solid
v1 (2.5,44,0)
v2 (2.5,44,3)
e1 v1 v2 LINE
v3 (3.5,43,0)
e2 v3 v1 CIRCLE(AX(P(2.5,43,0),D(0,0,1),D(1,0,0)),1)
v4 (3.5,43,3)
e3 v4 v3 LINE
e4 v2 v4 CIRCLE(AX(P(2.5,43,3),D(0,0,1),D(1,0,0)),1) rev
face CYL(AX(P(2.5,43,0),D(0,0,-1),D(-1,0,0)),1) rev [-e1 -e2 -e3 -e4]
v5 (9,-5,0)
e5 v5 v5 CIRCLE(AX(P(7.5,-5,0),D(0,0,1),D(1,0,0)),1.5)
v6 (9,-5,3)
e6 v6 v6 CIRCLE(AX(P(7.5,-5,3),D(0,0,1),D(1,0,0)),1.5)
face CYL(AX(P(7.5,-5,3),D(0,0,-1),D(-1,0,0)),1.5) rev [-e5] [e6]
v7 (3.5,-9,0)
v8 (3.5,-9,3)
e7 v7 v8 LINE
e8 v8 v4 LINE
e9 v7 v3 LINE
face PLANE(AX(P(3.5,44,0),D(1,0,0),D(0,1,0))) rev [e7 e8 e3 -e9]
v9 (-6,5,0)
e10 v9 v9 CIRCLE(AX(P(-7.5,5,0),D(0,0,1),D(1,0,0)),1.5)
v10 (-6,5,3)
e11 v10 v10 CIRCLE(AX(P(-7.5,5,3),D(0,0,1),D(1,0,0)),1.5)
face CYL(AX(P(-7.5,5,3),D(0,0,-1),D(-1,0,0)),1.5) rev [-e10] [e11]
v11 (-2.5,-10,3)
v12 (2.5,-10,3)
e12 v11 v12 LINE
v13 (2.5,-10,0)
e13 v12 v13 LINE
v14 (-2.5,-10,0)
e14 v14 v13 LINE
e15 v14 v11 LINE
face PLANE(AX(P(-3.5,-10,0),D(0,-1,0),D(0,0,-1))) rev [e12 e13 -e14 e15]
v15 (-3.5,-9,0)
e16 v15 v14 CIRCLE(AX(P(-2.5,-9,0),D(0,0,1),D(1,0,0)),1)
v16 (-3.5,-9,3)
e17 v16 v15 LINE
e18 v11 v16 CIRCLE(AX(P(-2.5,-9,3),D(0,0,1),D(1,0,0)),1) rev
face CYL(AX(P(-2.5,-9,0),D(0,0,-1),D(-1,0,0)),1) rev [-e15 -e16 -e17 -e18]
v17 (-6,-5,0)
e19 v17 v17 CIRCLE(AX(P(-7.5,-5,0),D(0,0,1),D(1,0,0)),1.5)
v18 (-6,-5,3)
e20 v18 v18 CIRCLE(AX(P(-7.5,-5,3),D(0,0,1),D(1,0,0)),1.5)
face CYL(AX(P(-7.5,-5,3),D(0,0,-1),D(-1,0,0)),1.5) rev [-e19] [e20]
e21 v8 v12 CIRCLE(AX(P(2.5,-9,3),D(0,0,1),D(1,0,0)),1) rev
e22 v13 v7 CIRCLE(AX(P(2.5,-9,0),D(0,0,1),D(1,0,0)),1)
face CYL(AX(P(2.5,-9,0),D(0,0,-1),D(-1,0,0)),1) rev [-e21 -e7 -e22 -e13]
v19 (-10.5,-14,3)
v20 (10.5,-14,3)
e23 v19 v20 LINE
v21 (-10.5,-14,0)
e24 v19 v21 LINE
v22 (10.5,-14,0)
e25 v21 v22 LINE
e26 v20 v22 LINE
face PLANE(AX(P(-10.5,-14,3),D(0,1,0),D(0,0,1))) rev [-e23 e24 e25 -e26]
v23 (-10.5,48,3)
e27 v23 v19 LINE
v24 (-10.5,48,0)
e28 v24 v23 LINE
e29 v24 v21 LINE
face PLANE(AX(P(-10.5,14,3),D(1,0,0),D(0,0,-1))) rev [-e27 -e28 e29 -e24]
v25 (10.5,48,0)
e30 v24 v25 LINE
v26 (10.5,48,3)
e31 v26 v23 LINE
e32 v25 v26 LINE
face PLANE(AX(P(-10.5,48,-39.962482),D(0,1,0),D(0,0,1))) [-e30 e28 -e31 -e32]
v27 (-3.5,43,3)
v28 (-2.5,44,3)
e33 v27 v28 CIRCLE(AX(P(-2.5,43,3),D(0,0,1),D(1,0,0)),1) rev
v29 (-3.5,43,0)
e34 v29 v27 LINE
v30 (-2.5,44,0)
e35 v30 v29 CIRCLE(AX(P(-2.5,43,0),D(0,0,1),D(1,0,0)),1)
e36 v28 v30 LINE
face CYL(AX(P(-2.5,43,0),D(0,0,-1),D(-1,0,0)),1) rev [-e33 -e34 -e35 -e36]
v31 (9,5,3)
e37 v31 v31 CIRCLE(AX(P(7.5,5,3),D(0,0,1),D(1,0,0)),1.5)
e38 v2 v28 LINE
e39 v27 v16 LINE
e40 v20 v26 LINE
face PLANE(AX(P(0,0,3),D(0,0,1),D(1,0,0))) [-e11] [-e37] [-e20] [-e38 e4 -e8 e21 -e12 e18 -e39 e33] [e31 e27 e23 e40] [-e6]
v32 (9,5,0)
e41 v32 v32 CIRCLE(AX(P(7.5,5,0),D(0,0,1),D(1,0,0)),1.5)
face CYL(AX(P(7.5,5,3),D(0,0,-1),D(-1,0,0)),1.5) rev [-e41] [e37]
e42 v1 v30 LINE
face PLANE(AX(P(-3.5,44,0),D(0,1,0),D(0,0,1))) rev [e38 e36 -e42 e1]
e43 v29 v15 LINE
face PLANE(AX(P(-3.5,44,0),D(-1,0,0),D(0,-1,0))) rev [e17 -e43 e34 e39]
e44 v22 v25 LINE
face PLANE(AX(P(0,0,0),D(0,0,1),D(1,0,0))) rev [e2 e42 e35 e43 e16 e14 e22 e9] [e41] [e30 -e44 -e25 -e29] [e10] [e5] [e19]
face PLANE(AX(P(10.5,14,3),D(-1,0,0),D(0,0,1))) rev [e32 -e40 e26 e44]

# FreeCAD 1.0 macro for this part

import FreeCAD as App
import Part
import Sketcher
Q = App.Units.Quantity


def edges_at(feature, points):
    """Names of the edges that pass closest to the given points."""
    edges = feature.Shape.Edges
    near = lambda p: min(range(len(edges)), key=lambda i: edges[i].distToShape(Part.Vertex(*p))[0])
    return sorted({f"Edge{near(p) + 1}" for p in points})

doc = App.newDocument("Part")
body = doc.addObject("PartDesign::Body", "Body")

sketch1 = body.newObject("Sketcher::SketchObject", "Sketch")
sketch1.AttachmentSupport = (doc.getObject("XY_Plane"), [""])
sketch1.MapMode = "FlatFace"
sketch1.addGeometry(Part.LineSegment(App.Vector(10.5, 14, 0), App.Vector(-10.5, 14, 0)), False)
sketch1.addGeometry(Part.LineSegment(App.Vector(-10.5, 14, 0), App.Vector(-10.5, -14, 0)), False)
sketch1.addGeometry(Part.LineSegment(App.Vector(-10.5, -14, 0), App.Vector(10.5, -14, 0)), False)
sketch1.addGeometry(Part.LineSegment(App.Vector(10.5, -14, 0), App.Vector(10.5, -4, 0)), False)
sketch1.addGeometry(Part.LineSegment(App.Vector(10.5, -4, 0), App.Vector(34.5, -4, 0)), False)
sketch1.addGeometry(Part.LineSegment(App.Vector(34.5, -4, 0), App.Vector(34.5, 4, 0)), False)
sketch1.addGeometry(Part.LineSegment(App.Vector(34.5, 4, 0), App.Vector(10.5, 4, 0)), False)
sketch1.addGeometry(Part.LineSegment(App.Vector(10.5, 4, 0), App.Vector(10.5, 14, 0)), False)
sketch1.addGeometry(Part.Circle(App.Vector(7.5, -5, 0), App.Vector(0, 0, 1), 1.5), False)
sketch1.addGeometry(Part.Circle(App.Vector(-7.5, -5, 0), App.Vector(0, 0, 1), 1.5), False)
sketch1.addGeometry(Part.Circle(App.Vector(31.5, 0, 0), App.Vector(0, 0, 1), 1.5), False)
sketch1.addGeometry(Part.Circle(App.Vector(16.5, 0, 0), App.Vector(0, 0, 1), 1.5), False)
sketch1.addGeometry(Part.Circle(App.Vector(7.5, 5, 0), App.Vector(0, 0, 1), 1.5), False)
sketch1.addGeometry(Part.Circle(App.Vector(-7.5, 5, 0), App.Vector(0, 0, 1), 1.5), False)
sketch1.addConstraint(Sketcher.Constraint("Coincident", 0, 2, 1, 1))
sketch1.addConstraint(Sketcher.Constraint("Coincident", 1, 2, 2, 1))
sketch1.addConstraint(Sketcher.Constraint("Coincident", 2, 2, 3, 1))
sketch1.addConstraint(Sketcher.Constraint("Coincident", 3, 2, 4, 1))
sketch1.addConstraint(Sketcher.Constraint("Coincident", 4, 2, 5, 1))
sketch1.addConstraint(Sketcher.Constraint("Coincident", 5, 2, 6, 1))
sketch1.addConstraint(Sketcher.Constraint("Coincident", 6, 2, 7, 1))
sketch1.addConstraint(Sketcher.Constraint("Coincident", 7, 2, 0, 1))
sketch1.addConstraint(Sketcher.Constraint("Horizontal", 0))
sketch1.addConstraint(Sketcher.Constraint("Vertical", 1))
sketch1.addConstraint(Sketcher.Constraint("Horizontal", 2))
sketch1.addConstraint(Sketcher.Constraint("Vertical", 3))
sketch1.addConstraint(Sketcher.Constraint("Horizontal", 4))
sketch1.addConstraint(Sketcher.Constraint("Vertical", 5))
sketch1.addConstraint(Sketcher.Constraint("Horizontal", 6))
sketch1.addConstraint(Sketcher.Constraint("Vertical", 7))
sketch1.addConstraint(Sketcher.Constraint("Equal", 8, 9))
sketch1.addConstraint(Sketcher.Constraint("Equal", 9, 10))
sketch1.addConstraint(Sketcher.Constraint("Equal", 10, 11))
sketch1.addConstraint(Sketcher.Constraint("Equal", 11, 12))
sketch1.addConstraint(Sketcher.Constraint("Equal", 12, 13))
sketch1.addConstraint(Sketcher.Constraint("Symmetric", 9, 3, 12, 3, -1, 1))
sketch1.addConstraint(Sketcher.Constraint("Symmetric", 8, 3, 13, 3, -1, 1))
sketch1.addConstraint(Sketcher.Constraint("Symmetric", 0, 2, 2, 2, -1, 1))
sketch1.addConstraint(Sketcher.Constraint("Symmetric", 8, 3, 9, 3, -2))
sketch1.addConstraint(Sketcher.Constraint("Symmetric", 3, 2, 6, 2, -1))
sketch1.addConstraint(Sketcher.Constraint("PointOnObject", 10, 3, -1))
sketch1.addConstraint(Sketcher.Constraint("PointOnObject", 11, 3, -1))
sketch1.addConstraint(Sketcher.Constraint("Diameter", 8, Q("3 mm")))
sketch1.addConstraint(Sketcher.Constraint("DistanceX", 0, 2, 0, 1, Q("21 mm")))
sketch1.addConstraint(Sketcher.Constraint("DistanceX", 4, 1, 4, 2, Q("24 mm")))
sketch1.addConstraint(Sketcher.Constraint("DistanceY", 1, 2, 1, 1, Q("28 mm")))
sketch1.addConstraint(Sketcher.Constraint("DistanceY", 3, 1, 3, 2, Q("10 mm")))
sketch1.addConstraint(Sketcher.Constraint("DistanceY", 8, 3, -1, 1, Q("5 mm")))
sketch1.addConstraint(Sketcher.Constraint("DistanceX", 9, 3, 8, 3, Q("15 mm")))
sketch1.addConstraint(Sketcher.Constraint("DistanceX", 8, 3, 10, 3, Q("24 mm")))
sketch1.addConstraint(Sketcher.Constraint("DistanceX", 8, 3, 11, 3, Q("9 mm")))
pad1 = body.newObject("PartDesign::Pad", "Pad")
pad1.Profile = sketch1
pad1.Length = 3
doc.recompute()

fillet = body.newObject("PartDesign::Fillet", "Fillet")
fillet.Base = (pad1, edges_at(pad1, [(10.5, 4, 1.5), (10.5, -4, 1.5)]))
fillet.Radius = 2

sketch2 = body.newObject("Sketcher::SketchObject", "Sketch001")
sketch2.AttachmentSupport = (doc.getObject("XY_Plane"), [""])
sketch2.MapMode = "FlatFace"
sketch2.AttachmentOffset = App.Placement(App.Vector(0, 0, 3), App.Rotation())
sketch2.addGeometry(Part.LineSegment(App.Vector(10, 14, 0), App.Vector(10, -16, 0)), False)
sketch2.addGeometry(Part.LineSegment(App.Vector(10, -16, 0), App.Vector(36, -16, 0)), False)
sketch2.addGeometry(Part.LineSegment(App.Vector(36, -16, 0), App.Vector(36, 14, 0)), False)
sketch2.addGeometry(Part.LineSegment(App.Vector(36, 14, 0), App.Vector(10, 14, 0)), False)
sketch2.addConstraint(Sketcher.Constraint("Coincident", 0, 2, 1, 1))
sketch2.addConstraint(Sketcher.Constraint("Coincident", 1, 2, 2, 1))
sketch2.addConstraint(Sketcher.Constraint("Coincident", 2, 2, 3, 1))
sketch2.addConstraint(Sketcher.Constraint("Coincident", 3, 2, 0, 1))
sketch2.addConstraint(Sketcher.Constraint("Vertical", 0))
sketch2.addConstraint(Sketcher.Constraint("Horizontal", 1))
sketch2.addConstraint(Sketcher.Constraint("Vertical", 2))
sketch2.addConstraint(Sketcher.Constraint("Horizontal", 3))
sketch2.addConstraint(Sketcher.Constraint("DistanceY", -1, 1, 2, 2, Q("14 mm")))
sketch2.addConstraint(Sketcher.Constraint("DistanceX", -1, 1, 0, 2, Q("10.5 mm")))
sketch2.addConstraint(Sketcher.Constraint("DistanceY", 0, 2, 0, 1, Q("29.703861 mm")))
sketch2.addConstraint(Sketcher.Constraint("DistanceX", 1, 1, 1, 2, Q("25.138693 mm")))
pocket1 = body.newObject("PartDesign::Pocket", "Pocket")
pocket1.Profile = sketch2
pocket1.Type = "ThroughAll"

sketch3 = body.newObject("Sketcher::SketchObject", "Sketch002")
sketch3.AttachmentSupport = (doc.getObject("XY_Plane"), [""])
sketch3.MapMode = "FlatFace"
sketch3.AttachmentOffset = App.Placement(App.Vector(0, 0, 3), App.Rotation())
sketch3.addGeometry(Part.LineSegment(App.Vector(-10, 48, 0), App.Vector(-10, 14, 0)), False)
sketch3.addGeometry(Part.LineSegment(App.Vector(-10, 14, 0), App.Vector(10, 14, 0)), False)
sketch3.addGeometry(Part.LineSegment(App.Vector(10, 14, 0), App.Vector(10, 48, 0)), False)
sketch3.addGeometry(Part.LineSegment(App.Vector(10, 48, 0), App.Vector(-10, 48, 0)), False)
sketch3.addConstraint(Sketcher.Constraint("Coincident", 0, 2, 1, 1))
sketch3.addConstraint(Sketcher.Constraint("Coincident", 1, 2, 2, 1))
sketch3.addConstraint(Sketcher.Constraint("Coincident", 2, 2, 3, 1))
sketch3.addConstraint(Sketcher.Constraint("Coincident", 3, 2, 0, 1))
sketch3.addConstraint(Sketcher.Constraint("Vertical", 0))
sketch3.addConstraint(Sketcher.Constraint("Horizontal", 1))
sketch3.addConstraint(Sketcher.Constraint("Vertical", 2))
sketch3.addConstraint(Sketcher.Constraint("Horizontal", 3))
sketch3.addConstraint(Sketcher.Constraint("DistanceX", 1, 1, 1, 2, Q("21 mm")))
sketch3.addConstraint(Sketcher.Constraint("DistanceY", 0, 2, 0, 1, Q("34 mm")))
sketch3.addConstraint(Sketcher.Constraint("DistanceY", -1, 1, 0, 2, Q("14 mm")))
sketch3.addConstraint(Sketcher.Constraint("DistanceX", 0, 2, -1, 1, Q("10.5 mm")))
pad2 = body.newObject("PartDesign::Pad", "Pad001")
pad2.Profile = sketch3
pad2.Length = 3
pad2.Reversed = True

sketch4 = body.newObject("Sketcher::SketchObject", "Sketch003")
sketch4.AttachmentSupport = (doc.getObject("XY_Plane"), [""])
sketch4.MapMode = "FlatFace"
sketch4.AttachmentOffset = App.Placement(App.Vector(0, 0, 3), App.Rotation())
sketch4.addGeometry(Part.LineSegment(App.Vector(-4, 44, 0), App.Vector(-4, -10, 0)), False)
sketch4.addGeometry(Part.LineSegment(App.Vector(-4, -10, 0), App.Vector(4, -10, 0)), False)
sketch4.addGeometry(Part.LineSegment(App.Vector(4, -10, 0), App.Vector(4, 44, 0)), False)
sketch4.addGeometry(Part.LineSegment(App.Vector(4, 44, 0), App.Vector(-4, 44, 0)), False)
sketch4.addConstraint(Sketcher.Constraint("Coincident", 0, 2, 1, 1))
sketch4.addConstraint(Sketcher.Constraint("Coincident", 1, 2, 2, 1))
sketch4.addConstraint(Sketcher.Constraint("Coincident", 2, 2, 3, 1))
sketch4.addConstraint(Sketcher.Constraint("Coincident", 3, 2, 0, 1))
sketch4.addConstraint(Sketcher.Constraint("Vertical", 0))
sketch4.addConstraint(Sketcher.Constraint("Horizontal", 1))
sketch4.addConstraint(Sketcher.Constraint("Vertical", 2))
sketch4.addConstraint(Sketcher.Constraint("Horizontal", 3))
sketch4.addConstraint(Sketcher.Constraint("DistanceX", 1, 1, 1, 2, Q("7 mm")))
sketch4.addConstraint(Sketcher.Constraint("DistanceY", 0, 2, 0, 1, Q("54 mm")))
sketch4.addConstraint(Sketcher.Constraint("DistanceY", 0, 2, -1, 1, Q("10 mm")))
sketch4.addConstraint(Sketcher.Constraint("DistanceX", 0, 2, -1, 1, Q("3.5 mm")))
pocket2 = body.newObject("PartDesign::Pocket", "Pocket001")
pocket2.Profile = sketch4
pocket2.Type = "ThroughAll"
doc.recompute()

fillet2 = body.newObject("PartDesign::Fillet", "Fillet001")
fillet2.Base = (pocket2, edges_at(pocket2, [
    (-3.5, -10, 1.5),
    (-3.5, 44, 1.5),
    (3.5, 44, 1.5),
    (3.5, -10, 1.5),
]))
fillet2.Radius = 1

doc.recompute()
